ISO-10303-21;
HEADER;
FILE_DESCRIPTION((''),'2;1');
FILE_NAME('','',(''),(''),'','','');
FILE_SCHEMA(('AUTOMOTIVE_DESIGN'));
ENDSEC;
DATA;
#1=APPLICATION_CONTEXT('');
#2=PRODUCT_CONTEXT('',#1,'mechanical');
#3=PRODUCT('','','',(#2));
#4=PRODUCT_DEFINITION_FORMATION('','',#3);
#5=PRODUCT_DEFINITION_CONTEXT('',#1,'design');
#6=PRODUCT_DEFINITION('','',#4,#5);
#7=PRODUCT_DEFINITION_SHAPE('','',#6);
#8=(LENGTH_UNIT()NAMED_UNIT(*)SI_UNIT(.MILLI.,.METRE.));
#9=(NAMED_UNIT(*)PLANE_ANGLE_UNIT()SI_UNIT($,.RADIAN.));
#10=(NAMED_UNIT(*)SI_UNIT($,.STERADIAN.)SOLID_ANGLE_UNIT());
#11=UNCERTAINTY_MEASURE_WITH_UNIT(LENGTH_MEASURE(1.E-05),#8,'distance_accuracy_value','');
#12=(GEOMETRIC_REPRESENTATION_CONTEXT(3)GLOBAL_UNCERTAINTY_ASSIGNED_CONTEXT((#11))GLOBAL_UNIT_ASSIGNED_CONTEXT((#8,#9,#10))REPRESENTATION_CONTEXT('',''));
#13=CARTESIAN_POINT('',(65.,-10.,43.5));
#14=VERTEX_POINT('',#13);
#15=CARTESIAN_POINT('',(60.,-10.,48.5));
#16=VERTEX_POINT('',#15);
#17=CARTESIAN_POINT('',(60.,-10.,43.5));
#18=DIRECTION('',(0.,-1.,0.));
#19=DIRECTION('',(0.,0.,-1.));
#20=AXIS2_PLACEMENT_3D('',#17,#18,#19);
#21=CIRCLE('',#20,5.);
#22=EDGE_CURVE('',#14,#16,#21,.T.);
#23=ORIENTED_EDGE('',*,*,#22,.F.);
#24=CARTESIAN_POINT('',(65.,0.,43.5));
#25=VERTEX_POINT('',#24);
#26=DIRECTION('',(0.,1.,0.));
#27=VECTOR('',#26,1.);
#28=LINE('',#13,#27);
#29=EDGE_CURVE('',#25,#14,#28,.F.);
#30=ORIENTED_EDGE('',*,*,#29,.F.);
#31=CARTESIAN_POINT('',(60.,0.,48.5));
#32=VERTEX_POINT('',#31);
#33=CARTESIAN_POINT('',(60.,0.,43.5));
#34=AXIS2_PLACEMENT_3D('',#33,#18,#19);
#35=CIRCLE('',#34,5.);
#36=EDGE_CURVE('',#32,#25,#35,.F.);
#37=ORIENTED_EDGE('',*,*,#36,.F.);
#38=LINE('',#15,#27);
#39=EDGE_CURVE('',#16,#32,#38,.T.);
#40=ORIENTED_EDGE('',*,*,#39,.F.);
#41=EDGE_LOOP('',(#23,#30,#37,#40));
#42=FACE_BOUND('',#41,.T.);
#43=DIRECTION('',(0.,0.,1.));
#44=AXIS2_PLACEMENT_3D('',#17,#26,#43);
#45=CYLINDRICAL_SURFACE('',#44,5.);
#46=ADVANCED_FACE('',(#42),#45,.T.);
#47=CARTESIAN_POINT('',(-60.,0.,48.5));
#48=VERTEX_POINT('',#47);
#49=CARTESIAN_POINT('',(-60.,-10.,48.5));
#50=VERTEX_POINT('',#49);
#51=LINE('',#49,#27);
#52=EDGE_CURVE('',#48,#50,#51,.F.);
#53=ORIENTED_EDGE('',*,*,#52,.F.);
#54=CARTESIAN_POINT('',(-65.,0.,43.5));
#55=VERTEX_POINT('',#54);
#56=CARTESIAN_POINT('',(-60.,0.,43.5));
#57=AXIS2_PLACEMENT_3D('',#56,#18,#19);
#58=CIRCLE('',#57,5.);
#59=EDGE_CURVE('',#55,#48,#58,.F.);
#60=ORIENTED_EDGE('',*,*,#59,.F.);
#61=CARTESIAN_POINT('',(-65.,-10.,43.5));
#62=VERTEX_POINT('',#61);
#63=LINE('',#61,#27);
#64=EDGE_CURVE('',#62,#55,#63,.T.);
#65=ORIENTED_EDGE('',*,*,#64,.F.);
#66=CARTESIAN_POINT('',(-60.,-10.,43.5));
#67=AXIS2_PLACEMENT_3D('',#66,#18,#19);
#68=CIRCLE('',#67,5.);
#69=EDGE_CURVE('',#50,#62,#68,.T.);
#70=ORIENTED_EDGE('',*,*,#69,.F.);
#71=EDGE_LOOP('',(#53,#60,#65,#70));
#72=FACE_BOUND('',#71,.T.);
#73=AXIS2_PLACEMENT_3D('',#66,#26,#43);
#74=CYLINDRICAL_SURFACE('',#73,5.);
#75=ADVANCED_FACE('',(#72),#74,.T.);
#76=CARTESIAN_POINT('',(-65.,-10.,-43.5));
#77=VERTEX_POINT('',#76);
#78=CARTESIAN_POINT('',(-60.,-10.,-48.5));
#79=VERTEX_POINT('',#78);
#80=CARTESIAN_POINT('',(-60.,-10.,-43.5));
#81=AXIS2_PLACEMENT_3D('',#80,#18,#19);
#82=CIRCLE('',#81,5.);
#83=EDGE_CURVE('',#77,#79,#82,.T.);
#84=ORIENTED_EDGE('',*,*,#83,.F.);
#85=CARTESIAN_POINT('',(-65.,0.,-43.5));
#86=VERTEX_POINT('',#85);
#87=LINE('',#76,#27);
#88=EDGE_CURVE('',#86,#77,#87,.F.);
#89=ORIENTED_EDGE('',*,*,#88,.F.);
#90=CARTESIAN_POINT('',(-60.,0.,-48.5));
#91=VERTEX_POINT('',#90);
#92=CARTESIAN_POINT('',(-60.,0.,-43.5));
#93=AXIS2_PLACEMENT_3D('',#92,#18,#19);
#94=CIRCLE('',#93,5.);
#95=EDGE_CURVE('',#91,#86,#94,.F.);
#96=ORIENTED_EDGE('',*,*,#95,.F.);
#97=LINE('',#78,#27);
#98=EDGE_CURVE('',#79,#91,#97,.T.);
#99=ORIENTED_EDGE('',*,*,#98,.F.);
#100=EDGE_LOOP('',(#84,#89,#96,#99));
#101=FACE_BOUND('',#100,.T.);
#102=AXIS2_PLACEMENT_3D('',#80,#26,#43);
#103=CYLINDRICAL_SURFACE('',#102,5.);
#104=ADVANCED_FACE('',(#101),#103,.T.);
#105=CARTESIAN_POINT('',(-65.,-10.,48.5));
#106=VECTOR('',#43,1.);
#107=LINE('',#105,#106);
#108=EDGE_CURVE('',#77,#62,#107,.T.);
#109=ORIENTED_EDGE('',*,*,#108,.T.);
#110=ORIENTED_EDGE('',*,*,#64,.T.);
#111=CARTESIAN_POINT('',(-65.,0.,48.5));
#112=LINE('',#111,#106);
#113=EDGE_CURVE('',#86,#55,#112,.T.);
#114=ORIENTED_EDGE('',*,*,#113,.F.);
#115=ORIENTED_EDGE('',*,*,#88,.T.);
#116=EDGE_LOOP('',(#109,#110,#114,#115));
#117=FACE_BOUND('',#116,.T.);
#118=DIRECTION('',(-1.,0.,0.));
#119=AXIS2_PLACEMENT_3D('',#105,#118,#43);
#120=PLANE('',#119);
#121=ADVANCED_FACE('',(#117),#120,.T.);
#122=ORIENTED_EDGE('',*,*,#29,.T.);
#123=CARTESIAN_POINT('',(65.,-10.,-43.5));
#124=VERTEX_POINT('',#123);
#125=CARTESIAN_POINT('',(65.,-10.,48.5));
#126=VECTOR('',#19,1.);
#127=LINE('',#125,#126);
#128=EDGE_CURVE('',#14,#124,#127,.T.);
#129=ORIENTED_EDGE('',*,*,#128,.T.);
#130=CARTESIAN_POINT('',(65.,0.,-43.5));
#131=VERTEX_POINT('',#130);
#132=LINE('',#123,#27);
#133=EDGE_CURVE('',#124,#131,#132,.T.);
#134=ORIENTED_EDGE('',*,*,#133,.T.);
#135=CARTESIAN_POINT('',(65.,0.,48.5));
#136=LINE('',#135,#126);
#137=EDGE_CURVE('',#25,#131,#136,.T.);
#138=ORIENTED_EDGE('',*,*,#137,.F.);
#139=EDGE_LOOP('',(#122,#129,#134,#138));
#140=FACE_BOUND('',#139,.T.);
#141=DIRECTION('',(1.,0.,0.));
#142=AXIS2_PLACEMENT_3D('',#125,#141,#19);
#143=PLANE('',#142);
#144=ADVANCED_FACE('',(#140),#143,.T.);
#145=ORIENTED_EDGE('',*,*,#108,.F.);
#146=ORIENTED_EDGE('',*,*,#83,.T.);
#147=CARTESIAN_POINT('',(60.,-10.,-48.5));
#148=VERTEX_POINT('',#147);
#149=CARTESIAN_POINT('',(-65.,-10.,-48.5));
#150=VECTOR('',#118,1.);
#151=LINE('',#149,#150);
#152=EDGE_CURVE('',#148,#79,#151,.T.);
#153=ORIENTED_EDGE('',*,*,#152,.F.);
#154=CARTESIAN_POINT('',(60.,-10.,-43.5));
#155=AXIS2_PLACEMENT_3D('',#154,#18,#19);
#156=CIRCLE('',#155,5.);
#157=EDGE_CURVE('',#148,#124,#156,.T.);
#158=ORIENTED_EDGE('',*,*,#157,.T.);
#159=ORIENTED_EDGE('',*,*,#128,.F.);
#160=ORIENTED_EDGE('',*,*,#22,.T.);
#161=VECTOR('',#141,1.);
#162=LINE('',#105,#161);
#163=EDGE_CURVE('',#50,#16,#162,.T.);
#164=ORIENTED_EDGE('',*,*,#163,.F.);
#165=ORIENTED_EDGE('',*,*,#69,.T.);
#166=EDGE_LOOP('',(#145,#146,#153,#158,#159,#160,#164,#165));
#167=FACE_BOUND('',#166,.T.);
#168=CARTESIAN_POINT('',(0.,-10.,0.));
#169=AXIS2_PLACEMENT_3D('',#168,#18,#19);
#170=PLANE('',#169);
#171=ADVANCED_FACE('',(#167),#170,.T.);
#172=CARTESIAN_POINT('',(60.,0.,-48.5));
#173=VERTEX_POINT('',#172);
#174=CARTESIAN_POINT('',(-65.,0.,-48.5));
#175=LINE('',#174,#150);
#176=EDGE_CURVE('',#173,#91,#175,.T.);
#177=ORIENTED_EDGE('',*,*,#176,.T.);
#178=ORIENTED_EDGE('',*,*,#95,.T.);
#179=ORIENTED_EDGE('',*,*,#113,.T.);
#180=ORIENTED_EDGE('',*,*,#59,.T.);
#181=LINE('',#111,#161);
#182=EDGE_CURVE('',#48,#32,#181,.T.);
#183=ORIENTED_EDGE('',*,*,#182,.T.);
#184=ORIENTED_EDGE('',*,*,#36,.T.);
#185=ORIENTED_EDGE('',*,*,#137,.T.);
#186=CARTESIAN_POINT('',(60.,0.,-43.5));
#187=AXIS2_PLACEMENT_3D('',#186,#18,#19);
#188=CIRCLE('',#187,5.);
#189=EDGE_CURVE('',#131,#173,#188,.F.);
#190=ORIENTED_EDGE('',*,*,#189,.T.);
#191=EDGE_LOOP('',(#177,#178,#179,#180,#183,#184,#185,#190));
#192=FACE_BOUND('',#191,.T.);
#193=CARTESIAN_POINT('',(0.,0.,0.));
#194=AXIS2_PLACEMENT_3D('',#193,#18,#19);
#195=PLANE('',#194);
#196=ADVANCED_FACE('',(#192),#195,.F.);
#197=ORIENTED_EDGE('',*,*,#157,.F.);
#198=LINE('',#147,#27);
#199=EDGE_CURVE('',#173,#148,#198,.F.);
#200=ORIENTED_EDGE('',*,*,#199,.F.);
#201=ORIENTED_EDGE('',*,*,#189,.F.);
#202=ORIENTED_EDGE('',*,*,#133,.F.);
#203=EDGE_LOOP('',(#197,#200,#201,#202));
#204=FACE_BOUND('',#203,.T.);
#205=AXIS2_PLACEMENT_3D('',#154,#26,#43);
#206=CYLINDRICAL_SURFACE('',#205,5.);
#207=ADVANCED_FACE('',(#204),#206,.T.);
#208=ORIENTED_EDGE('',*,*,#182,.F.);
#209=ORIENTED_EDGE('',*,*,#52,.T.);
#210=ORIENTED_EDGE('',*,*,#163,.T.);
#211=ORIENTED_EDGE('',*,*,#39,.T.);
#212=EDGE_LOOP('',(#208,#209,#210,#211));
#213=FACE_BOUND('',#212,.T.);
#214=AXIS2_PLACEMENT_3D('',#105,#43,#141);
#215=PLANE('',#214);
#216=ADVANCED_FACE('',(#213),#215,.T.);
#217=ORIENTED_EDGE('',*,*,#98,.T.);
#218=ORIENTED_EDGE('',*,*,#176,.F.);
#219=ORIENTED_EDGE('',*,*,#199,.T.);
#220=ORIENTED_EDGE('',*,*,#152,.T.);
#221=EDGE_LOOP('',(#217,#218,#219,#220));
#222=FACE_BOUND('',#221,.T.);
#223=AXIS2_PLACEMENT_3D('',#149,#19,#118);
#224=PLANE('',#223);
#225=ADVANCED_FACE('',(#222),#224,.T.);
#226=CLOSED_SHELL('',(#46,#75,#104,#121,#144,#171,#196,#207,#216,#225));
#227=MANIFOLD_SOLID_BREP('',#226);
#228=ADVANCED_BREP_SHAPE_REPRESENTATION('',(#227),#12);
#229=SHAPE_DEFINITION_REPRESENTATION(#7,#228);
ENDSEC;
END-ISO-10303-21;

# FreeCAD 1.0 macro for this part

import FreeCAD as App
import Part
import Sketcher
from FreeCAD import Vector


def edges_at(feature, points):
    """Names of the edges that pass closest to the given points."""
    edges = feature.Shape.Edges
    near = lambda p: min(range(len(edges)), key=lambda i: edges[i].distToShape(Part.Vertex(*p))[0])
    return sorted({f"Edge{near(p) + 1}" for p in points})


def add_polygon(sketch, points):
    """Adds a closed chain of lines whose ends are joined by coincident constraints."""
    first, n = sketch.GeometryCount, len(points)
    for a, b in zip(points, points[1:] + points[:1]):
        sketch.addGeometry(Part.LineSegment(App.Vector(*a, 0), App.Vector(*b, 0)), False)
    for i in range(n):
        sketch.addConstraint(Sketcher.Constraint("Coincident", first + i, 2, first + (i + 1) % n, 1))

doc = App.newDocument("Part")
body = doc.addObject("PartDesign::Body", "Body")

# Sketch on XZ plane
sketch1 = doc.addObject("Sketcher::SketchObject", "Sketch")
body.addObject(sketch1)
sketch1.AttachmentSupport = (doc.XZ_Plane, [""])
sketch1.MapMode = "FlatFace"
add_polygon(sketch1, [(-65, -48.5), (-65, 48.5), (65, 48.5), (65, -48.5)])  # lines 0-3
sketch1.addConstraint([
    Sketcher.Constraint("Vertical", 0),
    Sketcher.Constraint("Horizontal", 1),
    Sketcher.Constraint("Vertical", 2),
    Sketcher.Constraint("Horizontal", 3),
    Sketcher.Constraint("Symmetric", 0, 2, 2, 2, -1, 1),
    Sketcher.Constraint("DistanceX", 1, 1, 1, 2, 130.0),
    Sketcher.Constraint("DistanceY", 0, 1, 0, 2, 97.0),
])
pad1 = doc.addObject("PartDesign::Pad", "Pad")
body.addObject(pad1)
pad1.Profile = sketch1
pad1.Length = 10
doc.recompute()

fillet = doc.addObject("PartDesign::Fillet", "Fillet")
body.addObject(fillet)
fillet.Base = (pad1, edges_at(pad1, [
    (65, -5, 48.5),
    (-65, -5, 48.5),
    (-65, -5, -48.5),
    (65, -5, -48.5),
]))
fillet.Radius = 5

doc.recompute()
